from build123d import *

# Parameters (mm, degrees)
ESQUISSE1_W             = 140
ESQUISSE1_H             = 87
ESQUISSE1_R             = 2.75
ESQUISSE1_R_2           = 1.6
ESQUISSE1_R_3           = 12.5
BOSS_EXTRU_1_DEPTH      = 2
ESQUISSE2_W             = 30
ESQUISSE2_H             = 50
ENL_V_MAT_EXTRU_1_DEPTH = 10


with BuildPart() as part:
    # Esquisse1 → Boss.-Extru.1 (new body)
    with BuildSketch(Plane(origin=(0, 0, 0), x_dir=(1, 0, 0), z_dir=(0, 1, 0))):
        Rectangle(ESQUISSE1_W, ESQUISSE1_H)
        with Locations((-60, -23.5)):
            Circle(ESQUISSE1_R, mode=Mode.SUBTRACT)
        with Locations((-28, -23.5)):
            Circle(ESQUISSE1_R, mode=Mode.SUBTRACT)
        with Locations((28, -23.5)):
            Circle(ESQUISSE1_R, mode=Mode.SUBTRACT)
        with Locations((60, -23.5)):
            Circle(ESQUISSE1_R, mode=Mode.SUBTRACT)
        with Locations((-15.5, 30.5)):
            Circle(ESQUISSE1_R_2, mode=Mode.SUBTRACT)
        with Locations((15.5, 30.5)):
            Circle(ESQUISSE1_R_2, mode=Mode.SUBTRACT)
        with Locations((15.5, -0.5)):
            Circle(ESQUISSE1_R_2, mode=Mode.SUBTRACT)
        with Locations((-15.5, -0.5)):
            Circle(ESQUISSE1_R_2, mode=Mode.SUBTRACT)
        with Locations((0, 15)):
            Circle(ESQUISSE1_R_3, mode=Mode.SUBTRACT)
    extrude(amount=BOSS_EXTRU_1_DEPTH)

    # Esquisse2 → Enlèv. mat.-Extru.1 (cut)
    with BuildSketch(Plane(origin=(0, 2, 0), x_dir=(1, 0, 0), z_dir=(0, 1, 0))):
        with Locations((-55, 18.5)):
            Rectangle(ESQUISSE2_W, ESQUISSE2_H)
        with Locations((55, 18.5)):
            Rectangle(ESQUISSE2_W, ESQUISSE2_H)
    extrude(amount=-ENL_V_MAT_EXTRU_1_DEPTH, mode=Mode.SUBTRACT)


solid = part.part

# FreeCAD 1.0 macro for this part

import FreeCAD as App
import Part
import Sketcher

V = App.Vector
Q = App.Units.Quantity


def add_polygon(sketch, points):
    """Adds a closed chain of lines whose ends are joined by coincident constraints."""
    first, n = sketch.GeometryCount, len(points)
    for a, b in zip(points, points[1:] + points[:1]):
        sketch.addGeometry(Part.LineSegment(App.Vector(*a, 0), App.Vector(*b, 0)), False)
    for i in range(n):
        sketch.addConstraint(Sketcher.Constraint("Coincident", first + i, 2, first + (i + 1) % n, 1))

doc = App.newDocument("Part")
body = doc.addObject("PartDesign::Body", "Body")

sketch1 = body.newObject("Sketcher::SketchObject", "Sketch")
sketch1.AttachmentSupport = (doc.getObject("XZ_Plane"), [""])
sketch1.MapMode = "FlatFace"
add_polygon(sketch1, [(-70, -43.5), (-70, 43.5), (70, 43.5), (70, -43.5)])
sketch1.addGeometry(Part.Circle(V(-60, 23.5, 0), V(0, 0, 1), 2.75), False)
sketch1.addGeometry(Part.Circle(V(-28, 23.5, 0), V(0, 0, 1), 2.75), False)
sketch1.addGeometry(Part.Circle(V(-15.5, 0.5, 0), V(0, 0, 1), 1.6), False)
sketch1.addGeometry(Part.Circle(V(28, 23.5, 0), V(0, 0, 1), 2.75), False)
sketch1.addGeometry(Part.Circle(V(60, 23.5, 0), V(0, 0, 1), 2.75), False)
sketch1.addGeometry(Part.Circle(V(15.5, 0.5, 0), V(0, 0, 1), 1.6), False)
sketch1.addGeometry(Part.Circle(V(-15.5, -30.5, 0), V(0, 0, 1), 1.6), False)
sketch1.addGeometry(Part.Circle(V(0, -15, 0), V(0, 0, 1), 12.5), False)
sketch1.addGeometry(Part.Circle(V(15.5, -30.5, 0), V(0, 0, 1), 1.6), False)
sketch1.addConstraint(Sketcher.Constraint("Vertical", 0))
sketch1.addConstraint(Sketcher.Constraint("Horizontal", 1))
sketch1.addConstraint(Sketcher.Constraint("Vertical", 2))
sketch1.addConstraint(Sketcher.Constraint("Horizontal", 3))
sketch1.addConstraint(Sketcher.Constraint("Equal", 4, 5))
sketch1.addConstraint(Sketcher.Constraint("Equal", 5, 7))
sketch1.addConstraint(Sketcher.Constraint("Equal", 7, 8))
sketch1.addConstraint(Sketcher.Constraint("Equal", 6, 9))
sketch1.addConstraint(Sketcher.Constraint("Equal", 9, 10))
sketch1.addConstraint(Sketcher.Constraint("Equal", 10, 12))
sketch1.addConstraint(Sketcher.Constraint("Symmetric", 0, 2, 2, 2, -1, 1))
sketch1.addConstraint(Sketcher.Constraint("Symmetric", 5, 3, 7, 3, -2))
sketch1.addConstraint(Sketcher.Constraint("Symmetric", 4, 3, 8, 3, -2))
sketch1.addConstraint(Sketcher.Constraint("Symmetric", 6, 3, 9, 3, -2))
sketch1.addConstraint(Sketcher.Constraint("Symmetric", 10, 3, 12, 3, -2))
sketch1.addConstraint(Sketcher.Constraint("PointOnObject", 11, 3, -2))
sketch1.addConstraint(Sketcher.Constraint("Horizontal", 4, 3, 5, 3))
sketch1.addConstraint(Sketcher.Constraint("Vertical", 6, 3, 10, 3))
sketch1.addConstraint(Sketcher.Constraint("Diameter", 11, Q("25 mm")))
sketch1.addConstraint(Sketcher.Constraint("Diameter", 4, Q("5.5 mm")))
sketch1.addConstraint(Sketcher.Constraint("Diameter", 6, Q("3.2 mm")))
sketch1.addConstraint(Sketcher.Constraint("DistanceX", 1, 1, 1, 2, Q("140 mm")))
sketch1.addConstraint(Sketcher.Constraint("DistanceY", 0, 1, 0, 2, Q("87 mm")))
sketch1.addConstraint(Sketcher.Constraint("DistanceX", 4, 3, -1, 1, Q("60 mm")))
sketch1.addConstraint(Sketcher.Constraint("DistanceX", 5, 3, -1, 1, Q("28 mm")))
sketch1.addConstraint(Sketcher.Constraint("DistanceY", 11, 3, -1, 1, Q("15 mm")))
sketch1.addConstraint(Sketcher.Constraint("DistanceY", 6, 3, 5, 3, Q("23 mm")))
sketch1.addConstraint(Sketcher.Constraint("DistanceX", 6, 3, 9, 3, Q("31 mm")))
sketch1.addConstraint(Sketcher.Constraint("DistanceY", 10, 3, 6, 3, Q("31 mm")))
sketch1.addConstraint(Sketcher.Constraint("DistanceY", 4, 3, 0, 2, Q("20 mm")))
pad1 = body.newObject("PartDesign::Pad", "Pad")
pad1.Profile = sketch1
pad1.Length = 2
pad1.Reversed = True

sketch2 = body.newObject("Sketcher::SketchObject", "Sketch001")
sketch2.AttachmentSupport = (doc.getObject("XZ_Plane"), [""])
sketch2.MapMode = "FlatFace"
sketch2.AttachmentOffset = App.Placement(V(0, 0, -2), App.Rotation())
add_polygon(sketch2, [(-70, -43.5), (-70, 6.5), (-40, 6.5), (-40, -43.5)])
add_polygon(sketch2, [(40, -43.5), (40, 6.5), (70, 6.5), (70, -43.5)])
sketch2.addConstraint(Sketcher.Constraint("Vertical", 0))
sketch2.addConstraint(Sketcher.Constraint("Horizontal", 1))
sketch2.addConstraint(Sketcher.Constraint("Vertical", 2))
sketch2.addConstraint(Sketcher.Constraint("Horizontal", 3))
sketch2.addConstraint(Sketcher.Constraint("Vertical", 4))
sketch2.addConstraint(Sketcher.Constraint("Horizontal", 5))
sketch2.addConstraint(Sketcher.Constraint("Vertical", 6))
sketch2.addConstraint(Sketcher.Constraint("Horizontal", 7))
sketch2.addConstraint(Sketcher.Constraint("Symmetric", 1, 2, 4, 2, -2))
sketch2.addConstraint(Sketcher.Constraint("Symmetric", 3, 2, 6, 2, -2))
sketch2.addConstraint(Sketcher.Constraint("DistanceX", 1, 1, 1, 2, Q("30 mm")))
sketch2.addConstraint(Sketcher.Constraint("DistanceY", 0, 1, 0, 2, Q("50 mm")))
sketch2.addConstraint(Sketcher.Constraint("DistanceX", 0, 2, -1, 1, Q("70 mm")))
sketch2.addConstraint(Sketcher.Constraint("DistanceY", -1, 1, 0, 2, Q("6.5 mm")))
pocket1 = body.newObject("PartDesign::Pocket", "Pocket")
pocket1.Profile = sketch2
pocket1.Length = 10
pocket1.Reversed = True

doc.recompute()
